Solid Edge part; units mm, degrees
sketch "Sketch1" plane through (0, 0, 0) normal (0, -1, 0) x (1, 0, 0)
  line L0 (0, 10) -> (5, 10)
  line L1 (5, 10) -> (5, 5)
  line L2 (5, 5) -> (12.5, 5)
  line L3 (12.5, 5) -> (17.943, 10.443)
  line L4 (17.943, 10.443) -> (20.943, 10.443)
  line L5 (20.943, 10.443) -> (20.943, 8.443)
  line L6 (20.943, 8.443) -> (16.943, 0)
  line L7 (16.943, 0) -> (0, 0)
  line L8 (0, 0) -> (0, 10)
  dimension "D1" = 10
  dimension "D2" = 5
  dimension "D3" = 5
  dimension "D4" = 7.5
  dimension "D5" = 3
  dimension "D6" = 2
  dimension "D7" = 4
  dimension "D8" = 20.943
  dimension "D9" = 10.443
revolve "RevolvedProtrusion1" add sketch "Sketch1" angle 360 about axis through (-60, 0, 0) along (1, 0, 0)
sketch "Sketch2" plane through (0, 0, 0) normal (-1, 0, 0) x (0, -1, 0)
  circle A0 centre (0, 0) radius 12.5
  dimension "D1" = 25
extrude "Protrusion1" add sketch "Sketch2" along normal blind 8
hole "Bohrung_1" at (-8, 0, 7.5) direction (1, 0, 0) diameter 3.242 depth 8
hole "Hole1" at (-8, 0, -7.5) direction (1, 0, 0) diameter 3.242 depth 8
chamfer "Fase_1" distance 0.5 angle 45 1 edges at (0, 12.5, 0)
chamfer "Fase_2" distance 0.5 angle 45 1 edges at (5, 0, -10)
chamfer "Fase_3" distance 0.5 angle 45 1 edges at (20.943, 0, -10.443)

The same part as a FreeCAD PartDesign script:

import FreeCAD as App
import Part
import Sketcher
from FreeCAD import Vector
Q = App.Units.Quantity


def edges_at(feature, points):
    """Names of the edges that pass closest to the given points."""
    edges = feature.Shape.Edges
    near = lambda p: min(range(len(edges)), key=lambda i: edges[i].distToShape(Part.Vertex(*p))[0])
    return sorted({f"Edge{near(p) + 1}" for p in points})

doc = App.newDocument("Part")
body = doc.addObject("PartDesign::Body", "Body")

# Sketch on XZ plane
sketch1 = body.newObject("Sketcher::SketchObject", "Sketch")
sketch1.AttachmentSupport = (doc.getObject("XZ_Plane"), [""])
sketch1.MapMode = "FlatFace"
sketch1.addGeometry([
    Part.LineSegment(Vector(5, 10, 0), Vector(0, 10, 0)),  # 0
    Part.LineSegment(Vector(0, 10, 0), Vector(0, 0, 0)),  # 1
    Part.LineSegment(Vector(0, 0, 0), Vector(16.9, 0, 0)),  # 2
    Part.LineSegment(Vector(16.9, 0, 0), Vector(20.9, 8.4, 0)),  # 3
    Part.LineSegment(Vector(20.9, 8.4, 0), Vector(20.9, 10.4, 0)),  # 4
    Part.LineSegment(Vector(20.9, 10.4, 0), Vector(17.9, 10.4, 0)),  # 5
    Part.LineSegment(Vector(17.9, 10.4, 0), Vector(12.5, 5, 0)),  # 6
    Part.LineSegment(Vector(12.5, 5, 0), Vector(5, 5, 0)),  # 7
    Part.LineSegment(Vector(5, 5, 0), Vector(5, 10, 0)),  # 8
], False)
sketch1.addConstraint([
    Sketcher.Constraint("Coincident", 0, 2, 1, 1),
    Sketcher.Constraint("Coincident", 1, 2, 2, 1),
    Sketcher.Constraint("Coincident", 2, 2, 3, 1),
    Sketcher.Constraint("Coincident", 3, 2, 4, 1),
    Sketcher.Constraint("Coincident", 4, 2, 5, 1),
    Sketcher.Constraint("Coincident", 5, 2, 6, 1),
    Sketcher.Constraint("Coincident", 6, 2, 7, 1),
    Sketcher.Constraint("Coincident", 7, 2, 8, 1),
    Sketcher.Constraint("Coincident", 8, 2, 0, 1),
    Sketcher.Constraint("Horizontal", 0),
    Sketcher.Constraint("Vertical", 1),
    Sketcher.Constraint("Horizontal", 2),
    Sketcher.Constraint("Vertical", 4),
    Sketcher.Constraint("Horizontal", 5),
    Sketcher.Constraint("Horizontal", 7),
    Sketcher.Constraint("Vertical", 8),
    Sketcher.Constraint("Coincident", 1, 2, -1, 1),
    Sketcher.Constraint("Equal", 0, 8),
    Sketcher.Constraint("DistanceX", 0, 2, 0, 1, 5.0),
    Sketcher.Constraint("DistanceY", -1, 1, 6, 2, 5.0),
    Sketcher.Constraint("DistanceX", 2, 1, 2, 2, 16.943),
    Sketcher.Constraint("DistanceX", 5, 2, 5, 1, 3.0),
    Sketcher.Constraint("DistanceY", 4, 1, 4, 2, 2.0),
    Sketcher.Constraint("Angle", 6, Q("-135 deg")),
    Sketcher.Constraint("DistanceX", 7, 2, 7, 1, 7.5),
    Sketcher.Constraint("DistanceX", -1, 1, 3, 2, 20.943),
])
revolution = body.newObject("PartDesign::Revolution", "Revolution")
revolution.Profile = sketch1
revolution.ReferenceAxis = (sketch1, ["H_Axis"])
revolution.Angle = 360

# Sketch on YZ plane
sketch2 = body.newObject("Sketcher::SketchObject", "Sketch001")
sketch2.AttachmentSupport = (doc.getObject("YZ_Plane"), [""])
sketch2.MapMode = "FlatFace"
sketch2.addGeometry(Part.Circle(Vector(0, 0, 0), Vector(0, 0, 1), 12), False)
sketch2.addConstraint([
    Sketcher.Constraint("Coincident", 0, 3, -1, 1),
    Sketcher.Constraint("Diameter", 0, 25.0),
])
pad1 = body.newObject("PartDesign::Pad", "Pad")
pad1.Profile = sketch2
pad1.Length = 8
pad1.Reversed = True

# Sketch on YZ plane
sketch3 = body.newObject("Sketcher::SketchObject", "Sketch002")
sketch3.AttachmentSupport = (doc.getObject("YZ_Plane"), [""])
sketch3.MapMode = "FlatFace"
sketch3.AttachmentOffset = App.Placement(Vector(0, 0, -8), App.Rotation())
sketch3.addGeometry(Part.Circle(Vector(0, 7.5, 0), Vector(0, 0, 1), 1.6), False)
sketch3.addConstraint([
    Sketcher.Constraint("PointOnObject", 0, 3, -2),
    Sketcher.Constraint("Diameter", 0, 3.242),
    Sketcher.Constraint("DistanceY", -1, 1, 0, 3, 7.5),
])
doc.recompute()
hole = body.newObject("PartDesign::Hole", "Hole")
hole.Profile = sketch3
hole.ThreadType = "None"
hole.Diameter = 3.242
hole.DepthType = "Dimension"
hole.Depth = 8
hole.DrillPoint = "Flat"
hole.Reversed = True

# Sketch on YZ plane
sketch4 = body.newObject("Sketcher::SketchObject", "Sketch003")
sketch4.AttachmentSupport = (doc.getObject("YZ_Plane"), [""])
sketch4.MapMode = "FlatFace"
sketch4.AttachmentOffset = App.Placement(Vector(0, 0, -8), App.Rotation())
sketch4.addGeometry(Part.Circle(Vector(0, -7.5, 0), Vector(0, 0, 1), 1.6), False)
sketch4.addConstraint([
    Sketcher.Constraint("PointOnObject", 0, 3, -2),
    Sketcher.Constraint("Diameter", 0, 3.242),
    Sketcher.Constraint("DistanceY", 0, 3, -1, 1, 7.5),
])
doc.recompute()
hole2 = body.newObject("PartDesign::Hole", "Hole001")
hole2.Profile = sketch4
hole2.ThreadType = "None"
hole2.Diameter = 3.242
hole2.DepthType = "Dimension"
hole2.Depth = 8
hole2.DrillPoint = "Flat"
hole2.Reversed = True
doc.recompute()

chamfer = body.newObject("PartDesign::Chamfer", "Chamfer")
chamfer.Base = (hole2, edges_at(hole2, [(0, 12.5, 0)]))
chamfer.Size = 0.5
doc.recompute()

chamfer2 = body.newObject("PartDesign::Chamfer", "Chamfer001")
chamfer2.Base = (chamfer, edges_at(chamfer, [(5, 0, -10)]))
chamfer2.Size = 0.5
doc.recompute()

chamfer3 = body.newObject("PartDesign::Chamfer", "Chamfer002")
chamfer3.Base = (chamfer2, edges_at(chamfer2, [(20.943, 0, -10.443)]))
chamfer3.Size = 0.5

doc.recompute()
